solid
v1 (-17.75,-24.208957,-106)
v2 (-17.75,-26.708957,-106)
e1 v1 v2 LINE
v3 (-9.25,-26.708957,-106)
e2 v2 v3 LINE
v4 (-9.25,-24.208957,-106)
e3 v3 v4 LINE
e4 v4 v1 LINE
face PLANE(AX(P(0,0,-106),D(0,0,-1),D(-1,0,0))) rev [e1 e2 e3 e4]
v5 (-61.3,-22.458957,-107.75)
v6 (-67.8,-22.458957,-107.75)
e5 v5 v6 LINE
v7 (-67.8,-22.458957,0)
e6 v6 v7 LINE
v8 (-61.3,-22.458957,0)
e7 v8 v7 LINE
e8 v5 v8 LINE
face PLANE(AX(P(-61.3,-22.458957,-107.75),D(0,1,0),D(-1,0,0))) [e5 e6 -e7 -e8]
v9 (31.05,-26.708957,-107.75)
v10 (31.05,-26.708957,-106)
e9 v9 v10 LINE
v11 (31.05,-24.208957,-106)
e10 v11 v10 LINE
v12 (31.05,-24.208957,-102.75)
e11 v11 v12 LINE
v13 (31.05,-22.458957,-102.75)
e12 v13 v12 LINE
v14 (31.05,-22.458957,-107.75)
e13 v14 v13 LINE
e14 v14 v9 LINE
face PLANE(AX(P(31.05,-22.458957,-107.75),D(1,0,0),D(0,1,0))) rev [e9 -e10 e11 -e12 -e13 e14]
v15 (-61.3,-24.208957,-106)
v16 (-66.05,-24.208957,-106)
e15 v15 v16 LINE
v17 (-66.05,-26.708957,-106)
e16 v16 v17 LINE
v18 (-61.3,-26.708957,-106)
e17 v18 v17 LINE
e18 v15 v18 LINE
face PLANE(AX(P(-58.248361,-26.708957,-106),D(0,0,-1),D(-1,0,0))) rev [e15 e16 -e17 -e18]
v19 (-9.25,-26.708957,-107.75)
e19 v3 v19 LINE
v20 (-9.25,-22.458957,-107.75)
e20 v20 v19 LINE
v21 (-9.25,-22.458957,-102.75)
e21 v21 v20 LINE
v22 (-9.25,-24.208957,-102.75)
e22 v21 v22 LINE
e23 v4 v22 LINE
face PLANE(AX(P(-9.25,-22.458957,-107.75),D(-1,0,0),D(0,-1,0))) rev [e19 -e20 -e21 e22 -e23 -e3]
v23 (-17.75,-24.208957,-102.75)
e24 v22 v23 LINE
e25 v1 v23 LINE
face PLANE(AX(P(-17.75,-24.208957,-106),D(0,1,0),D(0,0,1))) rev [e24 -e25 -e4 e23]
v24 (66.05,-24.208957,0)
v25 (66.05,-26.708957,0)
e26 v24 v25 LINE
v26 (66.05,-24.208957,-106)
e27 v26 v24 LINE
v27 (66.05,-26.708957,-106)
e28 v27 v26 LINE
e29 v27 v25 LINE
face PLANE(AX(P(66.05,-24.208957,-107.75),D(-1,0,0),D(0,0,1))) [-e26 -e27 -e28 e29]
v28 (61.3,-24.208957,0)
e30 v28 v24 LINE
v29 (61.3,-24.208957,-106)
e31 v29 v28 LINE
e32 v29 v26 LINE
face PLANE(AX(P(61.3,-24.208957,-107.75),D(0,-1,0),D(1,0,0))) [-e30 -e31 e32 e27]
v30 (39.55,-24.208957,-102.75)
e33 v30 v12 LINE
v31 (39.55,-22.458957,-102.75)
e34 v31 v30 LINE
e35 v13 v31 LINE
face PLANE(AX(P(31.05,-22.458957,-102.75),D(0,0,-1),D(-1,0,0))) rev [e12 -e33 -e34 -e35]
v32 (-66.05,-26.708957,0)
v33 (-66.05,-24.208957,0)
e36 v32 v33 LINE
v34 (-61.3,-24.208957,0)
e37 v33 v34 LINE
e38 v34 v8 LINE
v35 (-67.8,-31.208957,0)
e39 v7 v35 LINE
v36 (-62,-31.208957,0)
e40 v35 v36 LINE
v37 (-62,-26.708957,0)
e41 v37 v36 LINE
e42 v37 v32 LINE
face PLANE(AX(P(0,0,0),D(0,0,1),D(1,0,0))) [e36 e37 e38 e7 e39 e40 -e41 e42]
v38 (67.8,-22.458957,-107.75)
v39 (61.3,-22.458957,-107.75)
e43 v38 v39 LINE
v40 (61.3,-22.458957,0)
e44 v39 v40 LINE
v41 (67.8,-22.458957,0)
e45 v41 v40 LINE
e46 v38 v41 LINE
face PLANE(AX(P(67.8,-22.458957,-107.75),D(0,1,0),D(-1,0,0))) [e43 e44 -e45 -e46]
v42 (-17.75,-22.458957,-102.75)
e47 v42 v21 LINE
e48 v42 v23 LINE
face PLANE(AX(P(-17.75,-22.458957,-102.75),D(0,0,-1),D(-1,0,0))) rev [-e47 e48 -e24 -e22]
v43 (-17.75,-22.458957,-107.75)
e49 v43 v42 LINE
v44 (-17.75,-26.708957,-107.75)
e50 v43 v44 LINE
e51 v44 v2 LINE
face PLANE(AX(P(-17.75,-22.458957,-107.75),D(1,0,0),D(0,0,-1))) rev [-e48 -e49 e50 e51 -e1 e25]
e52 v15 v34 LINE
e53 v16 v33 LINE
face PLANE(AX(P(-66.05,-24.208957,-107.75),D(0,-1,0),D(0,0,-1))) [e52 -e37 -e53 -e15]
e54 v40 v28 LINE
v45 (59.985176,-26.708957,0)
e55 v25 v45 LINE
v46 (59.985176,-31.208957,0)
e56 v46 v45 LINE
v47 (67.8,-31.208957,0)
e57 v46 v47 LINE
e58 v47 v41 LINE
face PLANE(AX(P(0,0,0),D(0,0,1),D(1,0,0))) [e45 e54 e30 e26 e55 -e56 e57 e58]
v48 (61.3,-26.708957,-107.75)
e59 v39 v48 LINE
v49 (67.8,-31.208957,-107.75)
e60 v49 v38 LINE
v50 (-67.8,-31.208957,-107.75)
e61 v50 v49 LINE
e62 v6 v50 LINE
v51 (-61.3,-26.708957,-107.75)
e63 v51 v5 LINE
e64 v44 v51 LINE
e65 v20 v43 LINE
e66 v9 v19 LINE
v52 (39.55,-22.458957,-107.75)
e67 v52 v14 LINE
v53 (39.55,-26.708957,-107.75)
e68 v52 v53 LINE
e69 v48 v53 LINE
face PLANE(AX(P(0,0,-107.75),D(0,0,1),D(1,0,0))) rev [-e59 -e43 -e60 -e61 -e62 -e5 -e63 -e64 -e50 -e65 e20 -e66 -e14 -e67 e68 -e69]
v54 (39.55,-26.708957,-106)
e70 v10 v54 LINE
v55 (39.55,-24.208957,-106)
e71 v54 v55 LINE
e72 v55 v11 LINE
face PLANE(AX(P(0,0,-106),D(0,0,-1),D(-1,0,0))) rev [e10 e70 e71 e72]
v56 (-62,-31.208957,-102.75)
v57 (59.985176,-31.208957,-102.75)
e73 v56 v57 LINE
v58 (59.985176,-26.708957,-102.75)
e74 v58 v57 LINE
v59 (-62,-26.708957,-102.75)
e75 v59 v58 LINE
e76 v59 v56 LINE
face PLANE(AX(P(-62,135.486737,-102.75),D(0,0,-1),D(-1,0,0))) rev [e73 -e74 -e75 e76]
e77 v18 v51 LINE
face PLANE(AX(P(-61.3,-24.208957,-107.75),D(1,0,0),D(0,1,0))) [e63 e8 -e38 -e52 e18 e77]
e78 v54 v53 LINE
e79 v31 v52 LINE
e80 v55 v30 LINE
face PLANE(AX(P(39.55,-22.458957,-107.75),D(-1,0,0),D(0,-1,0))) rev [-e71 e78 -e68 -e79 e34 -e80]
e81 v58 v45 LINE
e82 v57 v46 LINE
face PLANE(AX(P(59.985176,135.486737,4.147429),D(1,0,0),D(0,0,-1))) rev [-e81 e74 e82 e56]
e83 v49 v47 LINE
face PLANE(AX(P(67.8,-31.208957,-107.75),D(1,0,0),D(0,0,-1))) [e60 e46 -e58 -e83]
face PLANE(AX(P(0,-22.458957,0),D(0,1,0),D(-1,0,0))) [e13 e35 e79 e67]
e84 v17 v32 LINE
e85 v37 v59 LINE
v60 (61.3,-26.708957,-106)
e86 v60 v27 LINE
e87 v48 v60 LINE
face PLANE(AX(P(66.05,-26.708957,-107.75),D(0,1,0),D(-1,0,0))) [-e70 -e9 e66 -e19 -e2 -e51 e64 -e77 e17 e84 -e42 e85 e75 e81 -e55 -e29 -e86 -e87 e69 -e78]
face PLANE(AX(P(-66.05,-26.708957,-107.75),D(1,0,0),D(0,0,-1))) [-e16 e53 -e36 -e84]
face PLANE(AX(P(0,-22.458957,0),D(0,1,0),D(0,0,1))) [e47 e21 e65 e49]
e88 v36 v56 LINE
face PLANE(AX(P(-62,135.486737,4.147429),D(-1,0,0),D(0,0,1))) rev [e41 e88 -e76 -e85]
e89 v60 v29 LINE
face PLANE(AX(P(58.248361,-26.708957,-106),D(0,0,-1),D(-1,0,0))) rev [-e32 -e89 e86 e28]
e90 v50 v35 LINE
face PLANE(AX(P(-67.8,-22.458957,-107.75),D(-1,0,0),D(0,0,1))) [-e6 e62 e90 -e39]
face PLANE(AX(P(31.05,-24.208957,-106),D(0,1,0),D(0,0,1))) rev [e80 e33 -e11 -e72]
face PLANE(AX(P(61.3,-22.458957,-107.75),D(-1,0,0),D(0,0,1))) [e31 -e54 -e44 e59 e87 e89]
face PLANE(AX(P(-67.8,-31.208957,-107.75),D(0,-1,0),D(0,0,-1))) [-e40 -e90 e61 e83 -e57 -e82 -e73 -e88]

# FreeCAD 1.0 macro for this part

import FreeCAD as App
import Part
import Sketcher
Q = App.Units.Quantity


def add_polygon(sketch, points):
    """Adds a closed chain of lines whose ends are joined by coincident constraints."""
    first, n = sketch.GeometryCount, len(points)
    for a, b in zip(points, points[1:] + points[:1]):
        sketch.addGeometry(Part.LineSegment(App.Vector(*a, 0), App.Vector(*b, 0)), False)
    for i in range(n):
        sketch.addConstraint(Sketcher.Constraint("Coincident", first + i, 2, first + (i + 1) % n, 1))

doc = App.newDocument("Part")
body = doc.addObject("PartDesign::Body", "Body")

sketch1 = body.newObject("Sketcher::SketchObject", "Sketch")
sketch1.AttachmentSupport = (doc.getObject("XY_Plane"), [""])
sketch1.MapMode = "FlatFace"
add_polygon(sketch1, [(-61.3, -24.2), (-61.3, -22.5), (-67.8, -22.5), (-67.8, -31.2), (67.8, -31.2), (67.8, -22.5), (61.3, -22.5), (61.3, -24.2), (66, -24.2), (66, -26.7), (-66, -26.7), (-66, -24.2)])
sketch1.addConstraint([
    Sketcher.Constraint("Vertical", 0),
    Sketcher.Constraint("Horizontal", 1),
    Sketcher.Constraint("Vertical", 2),
    Sketcher.Constraint("Horizontal", 3),
    Sketcher.Constraint("Vertical", 4),
    Sketcher.Constraint("Horizontal", 5),
    Sketcher.Constraint("Vertical", 6),
    Sketcher.Constraint("Horizontal", 7),
    Sketcher.Constraint("Vertical", 8),
    Sketcher.Constraint("Horizontal", 9),
    Sketcher.Constraint("Vertical", 10),
    Sketcher.Constraint("Horizontal", 11),
    Sketcher.Constraint("Symmetric", 1, 2, 4, 2, -2),
    Sketcher.Constraint("Symmetric", 7, 2, 10, 2, -2),
    Sketcher.Constraint("Equal", 1, 5),
    Sketcher.Constraint("DistanceX", 1, 2, 1, 1, Q("6.5 mm")),
    Sketcher.Constraint("DistanceX", 3, 1, 3, 2, Q("135.6 mm")),
    Sketcher.Constraint("DistanceX", 9, 2, 9, 1, Q("132.1 mm")),
    Sketcher.Constraint("DistanceY", 8, 2, 8, 1, Q("2.5 mm")),
    Sketcher.Constraint("DistanceY", 3, 2, 6, 2, Q("7 mm")),
    Sketcher.Constraint("DistanceY", 0, 1, 0, 2, Q("1.75 mm")),
    Sketcher.Constraint("DistanceY", 0, 2, -1, 1, Q("22.458957 mm")),
])
pad1 = body.newObject("PartDesign::Pad", "Pad")
pad1.Profile = sketch1
pad1.Length = 107.75
pad1.Reversed = True

sketch2 = body.newObject("Sketcher::SketchObject", "Sketch001")
sketch2.AttachmentSupport = (doc.getObject("XZ_Plane"), [""])
sketch2.MapMode = "FlatFace"
sketch2.AttachmentOffset = App.Placement(App.Vector(0, 0, 26.708957), App.Rotation())
add_polygon(sketch2, [(-18, -108), (-18, -103), (-9, -103), (-9, -108)])
add_polygon(sketch2, [(31, -108), (31, -103), (40, -103), (40, -108)])
sketch2.addConstraint([
    Sketcher.Constraint("Vertical", 0),
    Sketcher.Constraint("Horizontal", 1),
    Sketcher.Constraint("Vertical", 2),
    Sketcher.Constraint("Horizontal", 3),
    Sketcher.Constraint("Vertical", 4),
    Sketcher.Constraint("Horizontal", 5),
    Sketcher.Constraint("Vertical", 6),
    Sketcher.Constraint("Horizontal", 7),
    Sketcher.Constraint("Horizontal", 1, 2, 4, 2),
    Sketcher.Constraint("Horizontal", 3, 2, 6, 2),
    Sketcher.Constraint("Equal", 3, 5),
    Sketcher.Constraint("DistanceY", 0, 1, 0, 2, Q("5 mm")),
    Sketcher.Constraint("DistanceX", 1, 1, 1, 2, Q("8.5 mm")),
    Sketcher.Constraint("DistanceX", 1, 2, 4, 2, Q("40.3 mm")),
    Sketcher.Constraint("DistanceX", 0, 2, -1, 1, Q("17.75 mm")),
    Sketcher.Constraint("DistanceY", 0, 2, -1, 1, Q("102.75 mm")),
])
pad2 = body.newObject("PartDesign::Pad", "Pad001")
pad2.Profile = sketch2
pad2.Length = 4.25
pad2.Reversed = True

sketch3 = body.newObject("Sketcher::SketchObject", "Sketch002")
sketch3.AttachmentSupport = (doc.getObject("XY_Plane"), [""])
sketch3.MapMode = "FlatFace"
sketch3.AttachmentOffset = App.Placement(App.Vector(0, 0, -102.75), App.Rotation())
add_polygon(sketch3, [(-17.8, -24.2), (-17.8, -26.7), (-9.2, -26.7), (-9.2, -24.2)])
add_polygon(sketch3, [(31.1, -24.2), (31.1, -26.7), (39.5, -26.7), (39.5, -24.2)])
sketch3.addConstraint([
    Sketcher.Constraint("Vertical", 0),
    Sketcher.Constraint("Horizontal", 1),
    Sketcher.Constraint("Vertical", 2),
    Sketcher.Constraint("Horizontal", 3),
    Sketcher.Constraint("Vertical", 4),
    Sketcher.Constraint("Horizontal", 5),
    Sketcher.Constraint("Vertical", 6),
    Sketcher.Constraint("Horizontal", 7),
    Sketcher.Constraint("Horizontal", 1, 2, 4, 2),
    Sketcher.Constraint("Horizontal", 3, 2, 6, 2),
    Sketcher.Constraint("Equal", 3, 5),
    Sketcher.Constraint("DistanceX", 1, 1, 1, 2, Q("8.5 mm")),
    Sketcher.Constraint("DistanceY", 0, 2, 0, 1, Q("2.5 mm")),
    Sketcher.Constraint("DistanceX", 1, 2, 4, 2, Q("40.3 mm")),
    Sketcher.Constraint("DistanceX", 0, 2, -1, 1, Q("17.75 mm")),
    Sketcher.Constraint("DistanceY", 0, 2, -1, 1, Q("26.708957 mm")),
])
pocket1 = body.newObject("PartDesign::Pocket", "Pocket")
pocket1.Profile = sketch3
pocket1.Length = 3.25

sketch4 = body.newObject("Sketcher::SketchObject", "Sketch003")
sketch4.AttachmentSupport = (doc.getObject("YZ_Plane"), [""])
sketch4.MapMode = "FlatFace"
sketch4.AttachmentOffset = App.Placement(App.Vector(0, 0, 66.05), App.Rotation())
add_polygon(sketch4, [(-24.2, -107.8), (-26.7, -107.8), (-26.7, -106), (-24.2, -106)])
sketch4.addConstraint([
    Sketcher.Constraint("Horizontal", 0),
    Sketcher.Constraint("Vertical", 1),
    Sketcher.Constraint("Horizontal", 2),
    Sketcher.Constraint("Vertical", 3),
    Sketcher.Constraint("DistanceX", 0, 2, 0, 1, Q("2.5 mm")),
    Sketcher.Constraint("DistanceY", 1, 2, -1, 1, Q("106 mm")),
    Sketcher.Constraint("DistanceY", 1, 1, 1, 2, Q("1.75 mm")),
    Sketcher.Constraint("DistanceX", 0, 2, -1, 1, Q("26.708957 mm")),
])
pad3 = body.newObject("PartDesign::Pad", "Pad002")
pad3.Profile = sketch4
pad3.Length = 4.75
pad3.Reversed = True

sketch5 = body.newObject("Sketcher::SketchObject", "Sketch004")
sketch5.AttachmentSupport = (doc.getObject("YZ_Plane"), [""])
sketch5.MapMode = "FlatFace"
sketch5.AttachmentOffset = App.Placement(App.Vector(0, 0, -66.05), App.Rotation())
add_polygon(sketch5, [(-24.2, -106), (-26.7, -106), (-26.7, -107.8), (-24.2, -107.8)])
sketch5.addConstraint([
    Sketcher.Constraint("Horizontal", 0),
    Sketcher.Constraint("Vertical", 1),
    Sketcher.Constraint("Horizontal", 2),
    Sketcher.Constraint("Vertical", 3),
    Sketcher.Constraint("DistanceX", 0, 2, 0, 1, Q("2.5 mm")),
    Sketcher.Constraint("DistanceY", 0, 2, -1, 1, Q("106 mm")),
    Sketcher.Constraint("DistanceY", 1, 2, 1, 1, Q("1.75 mm")),
    Sketcher.Constraint("DistanceX", 0, 2, -1, 1, Q("26.708957 mm")),
])
pad4 = body.newObject("PartDesign::Pad", "Pad003")
pad4.Profile = sketch5
pad4.Length = 4.75

sketch6 = body.newObject("Sketcher::SketchObject", "Sketch005")
sketch6.AttachmentSupport = (doc.getObject("XZ_Plane"), [""])
sketch6.MapMode = "FlatFace"
sketch6.AttachmentOffset = App.Placement(App.Vector(0, 0, 31.208957), App.Rotation())
add_polygon(sketch6, [(-62, 4), (-62, -103), (60, -103), (60, 4)])
sketch6.addConstraint([
    Sketcher.Constraint("Vertical", 0),
    Sketcher.Constraint("Horizontal", 1),
    Sketcher.Constraint("Vertical", 2),
    Sketcher.Constraint("Horizontal", 3),
    Sketcher.Constraint("DistanceX", 0, 2, -1, 1, Q("62 mm")),
    Sketcher.Constraint("DistanceY", 0, 2, -1, 1, Q("102.75 mm")),
    Sketcher.Constraint("DistanceY", 0, 2, 0, 1, Q("106.897429 mm")),
    Sketcher.Constraint("DistanceX", 1, 1, 1, 2, Q("121.985176 mm")),
])
pocket2 = body.newObject("PartDesign::Pocket", "Pocket001")
pocket2.Profile = sketch6
pocket2.Length = 4.5

doc.recompute()
